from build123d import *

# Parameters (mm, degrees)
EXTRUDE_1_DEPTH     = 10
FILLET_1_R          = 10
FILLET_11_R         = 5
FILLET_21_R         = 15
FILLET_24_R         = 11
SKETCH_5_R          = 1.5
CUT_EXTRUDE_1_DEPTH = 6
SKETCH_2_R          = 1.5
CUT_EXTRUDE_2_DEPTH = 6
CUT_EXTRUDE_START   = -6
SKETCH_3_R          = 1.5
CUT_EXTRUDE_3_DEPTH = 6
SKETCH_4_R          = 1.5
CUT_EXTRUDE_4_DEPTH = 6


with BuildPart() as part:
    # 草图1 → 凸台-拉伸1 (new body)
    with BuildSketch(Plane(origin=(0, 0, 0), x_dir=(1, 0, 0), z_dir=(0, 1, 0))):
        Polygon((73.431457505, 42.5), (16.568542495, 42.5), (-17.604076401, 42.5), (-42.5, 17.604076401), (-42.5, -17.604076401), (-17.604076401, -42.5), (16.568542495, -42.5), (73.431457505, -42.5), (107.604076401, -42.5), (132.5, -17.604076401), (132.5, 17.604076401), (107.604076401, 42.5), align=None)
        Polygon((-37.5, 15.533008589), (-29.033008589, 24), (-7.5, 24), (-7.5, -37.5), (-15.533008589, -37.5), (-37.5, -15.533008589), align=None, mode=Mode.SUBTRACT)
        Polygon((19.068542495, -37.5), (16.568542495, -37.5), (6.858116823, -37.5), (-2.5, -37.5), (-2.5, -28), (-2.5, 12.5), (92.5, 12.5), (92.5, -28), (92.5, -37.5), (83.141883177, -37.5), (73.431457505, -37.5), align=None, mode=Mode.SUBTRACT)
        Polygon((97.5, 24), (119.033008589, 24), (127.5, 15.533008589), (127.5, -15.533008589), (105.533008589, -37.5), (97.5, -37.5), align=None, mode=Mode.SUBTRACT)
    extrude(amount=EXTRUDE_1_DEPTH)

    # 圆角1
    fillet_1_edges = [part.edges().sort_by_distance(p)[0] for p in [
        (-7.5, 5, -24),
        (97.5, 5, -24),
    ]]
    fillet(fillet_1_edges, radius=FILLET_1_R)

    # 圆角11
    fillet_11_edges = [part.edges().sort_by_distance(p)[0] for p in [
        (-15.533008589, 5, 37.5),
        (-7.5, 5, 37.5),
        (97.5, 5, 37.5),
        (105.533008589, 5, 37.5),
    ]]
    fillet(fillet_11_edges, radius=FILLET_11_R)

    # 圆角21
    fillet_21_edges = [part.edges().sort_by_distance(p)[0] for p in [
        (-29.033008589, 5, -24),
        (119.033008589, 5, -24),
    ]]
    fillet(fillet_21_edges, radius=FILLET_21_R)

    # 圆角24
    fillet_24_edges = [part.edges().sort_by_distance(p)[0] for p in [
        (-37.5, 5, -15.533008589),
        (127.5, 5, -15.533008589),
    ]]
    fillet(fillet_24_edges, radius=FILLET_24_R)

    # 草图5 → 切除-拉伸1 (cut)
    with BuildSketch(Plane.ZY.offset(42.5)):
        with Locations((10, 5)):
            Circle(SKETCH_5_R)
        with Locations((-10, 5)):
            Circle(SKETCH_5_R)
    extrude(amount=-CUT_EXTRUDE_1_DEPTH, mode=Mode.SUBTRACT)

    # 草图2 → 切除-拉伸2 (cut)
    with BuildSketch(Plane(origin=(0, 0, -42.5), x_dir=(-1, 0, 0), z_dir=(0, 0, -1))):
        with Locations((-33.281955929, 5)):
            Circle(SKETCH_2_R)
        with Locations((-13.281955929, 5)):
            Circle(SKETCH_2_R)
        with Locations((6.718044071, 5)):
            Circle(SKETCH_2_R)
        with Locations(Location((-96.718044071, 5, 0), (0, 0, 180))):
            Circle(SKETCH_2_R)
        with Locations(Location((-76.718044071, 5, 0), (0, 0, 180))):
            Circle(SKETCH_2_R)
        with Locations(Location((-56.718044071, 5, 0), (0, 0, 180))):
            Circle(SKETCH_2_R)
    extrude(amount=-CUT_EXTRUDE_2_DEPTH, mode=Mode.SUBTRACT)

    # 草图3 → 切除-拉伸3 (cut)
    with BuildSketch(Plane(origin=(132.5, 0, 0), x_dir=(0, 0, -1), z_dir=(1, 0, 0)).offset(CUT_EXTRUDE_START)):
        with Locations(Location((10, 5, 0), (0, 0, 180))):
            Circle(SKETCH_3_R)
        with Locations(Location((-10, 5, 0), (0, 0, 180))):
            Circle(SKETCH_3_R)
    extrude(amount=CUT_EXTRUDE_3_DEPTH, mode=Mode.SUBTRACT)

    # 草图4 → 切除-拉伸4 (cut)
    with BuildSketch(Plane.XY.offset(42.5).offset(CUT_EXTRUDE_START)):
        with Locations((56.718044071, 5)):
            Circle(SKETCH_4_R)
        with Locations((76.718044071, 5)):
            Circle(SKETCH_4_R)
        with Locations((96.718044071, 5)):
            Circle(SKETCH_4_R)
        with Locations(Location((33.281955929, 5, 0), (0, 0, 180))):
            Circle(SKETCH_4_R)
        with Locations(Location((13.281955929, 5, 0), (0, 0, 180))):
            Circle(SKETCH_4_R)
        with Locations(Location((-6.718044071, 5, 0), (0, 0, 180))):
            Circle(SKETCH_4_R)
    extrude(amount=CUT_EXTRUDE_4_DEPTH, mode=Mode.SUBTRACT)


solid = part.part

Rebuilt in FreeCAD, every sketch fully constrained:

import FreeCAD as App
import Part
import Sketcher
Q = App.Units.Quantity


def edges_at(feature, points):
    """Names of the edges that pass closest to the given points."""
    edges = feature.Shape.Edges
    near = lambda p: min(range(len(edges)), key=lambda i: edges[i].distToShape(Part.Vertex(*p))[0])
    return sorted({f"Edge{near(p) + 1}" for p in points})

doc = App.newDocument("Part")
body = doc.addObject("PartDesign::Body", "Body")

# Sketch on XZ plane
sketch1 = body.newObject("Sketcher::SketchObject", "Sketch")
sketch1.AttachmentSupport = (doc.getObject("XZ_Plane"), [""])
sketch1.MapMode = "FlatFace"
sketch1.addGeometry(Part.LineSegment(App.Vector(-18, -42, 0), App.Vector(-42, -18, 0)), False)
sketch1.addGeometry(Part.LineSegment(App.Vector(-42, -18, 0), App.Vector(-42, 18, 0)), False)
sketch1.addGeometry(Part.LineSegment(App.Vector(-42, 18, 0), App.Vector(-18, 42, 0)), False)
sketch1.addGeometry(Part.LineSegment(App.Vector(-18, 42, 0), App.Vector(108, 42, 0)), False)
sketch1.addGeometry(Part.LineSegment(App.Vector(108, 42, 0), App.Vector(132, 18, 0)), False)
sketch1.addGeometry(Part.LineSegment(App.Vector(132, 18, 0), App.Vector(132, -18, 0)), False)
sketch1.addGeometry(Part.LineSegment(App.Vector(132, -18, 0), App.Vector(108, -42, 0)), False)
sketch1.addGeometry(Part.LineSegment(App.Vector(108, -42, 0), App.Vector(-18, -42, 0)), False)
sketch1.addGeometry(Part.LineSegment(App.Vector(92, 38, 0), App.Vector(-2, 38, 0)), False)
sketch1.addGeometry(Part.LineSegment(App.Vector(-2, 38, 0), App.Vector(-2, -12, 0)), False)
sketch1.addGeometry(Part.LineSegment(App.Vector(-2, -12, 0), App.Vector(92, -12, 0)), False)
sketch1.addGeometry(Part.LineSegment(App.Vector(92, -12, 0), App.Vector(92, 38, 0)), False)
sketch1.addGeometry(Part.LineSegment(App.Vector(-38, 16, 0), App.Vector(-38, -16, 0)), False)
sketch1.addGeometry(Part.LineSegment(App.Vector(-38, -16, 0), App.Vector(-29, -24, 0)), False)
sketch1.addGeometry(Part.LineSegment(App.Vector(-29, -24, 0), App.Vector(-8, -24, 0)), False)
sketch1.addGeometry(Part.LineSegment(App.Vector(-8, -24, 0), App.Vector(-8, 38, 0)), False)
sketch1.addGeometry(Part.LineSegment(App.Vector(-8, 38, 0), App.Vector(-16, 38, 0)), False)
sketch1.addGeometry(Part.LineSegment(App.Vector(-16, 38, 0), App.Vector(-38, 16, 0)), False)
sketch1.addGeometry(Part.LineSegment(App.Vector(98, 38, 0), App.Vector(98, -24, 0)), False)
sketch1.addGeometry(Part.LineSegment(App.Vector(98, -24, 0), App.Vector(119, -24, 0)), False)
sketch1.addGeometry(Part.LineSegment(App.Vector(119, -24, 0), App.Vector(128, -16, 0)), False)
sketch1.addGeometry(Part.LineSegment(App.Vector(128, -16, 0), App.Vector(128, 16, 0)), False)
sketch1.addGeometry(Part.LineSegment(App.Vector(128, 16, 0), App.Vector(106, 38, 0)), False)
sketch1.addGeometry(Part.LineSegment(App.Vector(106, 38, 0), App.Vector(98, 38, 0)), False)
sketch1.addConstraint(Sketcher.Constraint("Coincident", 0, 2, 1, 1))
sketch1.addConstraint(Sketcher.Constraint("Coincident", 1, 2, 2, 1))
sketch1.addConstraint(Sketcher.Constraint("Coincident", 2, 2, 3, 1))
sketch1.addConstraint(Sketcher.Constraint("Coincident", 3, 2, 4, 1))
sketch1.addConstraint(Sketcher.Constraint("Coincident", 4, 2, 5, 1))
sketch1.addConstraint(Sketcher.Constraint("Coincident", 5, 2, 6, 1))
sketch1.addConstraint(Sketcher.Constraint("Coincident", 6, 2, 7, 1))
sketch1.addConstraint(Sketcher.Constraint("Coincident", 7, 2, 0, 1))
sketch1.addConstraint(Sketcher.Constraint("Coincident", 8, 2, 9, 1))
sketch1.addConstraint(Sketcher.Constraint("Coincident", 9, 2, 10, 1))
sketch1.addConstraint(Sketcher.Constraint("Coincident", 10, 2, 11, 1))
sketch1.addConstraint(Sketcher.Constraint("Coincident", 11, 2, 8, 1))
sketch1.addConstraint(Sketcher.Constraint("Coincident", 12, 2, 13, 1))
sketch1.addConstraint(Sketcher.Constraint("Coincident", 13, 2, 14, 1))
sketch1.addConstraint(Sketcher.Constraint("Coincident", 14, 2, 15, 1))
sketch1.addConstraint(Sketcher.Constraint("Coincident", 15, 2, 16, 1))
sketch1.addConstraint(Sketcher.Constraint("Coincident", 16, 2, 17, 1))
sketch1.addConstraint(Sketcher.Constraint("Coincident", 17, 2, 12, 1))
sketch1.addConstraint(Sketcher.Constraint("Coincident", 18, 2, 19, 1))
sketch1.addConstraint(Sketcher.Constraint("Coincident", 19, 2, 20, 1))
sketch1.addConstraint(Sketcher.Constraint("Coincident", 20, 2, 21, 1))
sketch1.addConstraint(Sketcher.Constraint("Coincident", 21, 2, 22, 1))
sketch1.addConstraint(Sketcher.Constraint("Coincident", 22, 2, 23, 1))
sketch1.addConstraint(Sketcher.Constraint("Coincident", 23, 2, 18, 1))
sketch1.addConstraint(Sketcher.Constraint("Vertical", 1))
sketch1.addConstraint(Sketcher.Constraint("Horizontal", 3))
sketch1.addConstraint(Sketcher.Constraint("Vertical", 5))
sketch1.addConstraint(Sketcher.Constraint("Horizontal", 7))
sketch1.addConstraint(Sketcher.Constraint("Horizontal", 8))
sketch1.addConstraint(Sketcher.Constraint("Vertical", 9))
sketch1.addConstraint(Sketcher.Constraint("Horizontal", 10))
sketch1.addConstraint(Sketcher.Constraint("Vertical", 11))
sketch1.addConstraint(Sketcher.Constraint("Vertical", 12))
sketch1.addConstraint(Sketcher.Constraint("Horizontal", 14))
sketch1.addConstraint(Sketcher.Constraint("Vertical", 15))
sketch1.addConstraint(Sketcher.Constraint("Horizontal", 16))
sketch1.addConstraint(Sketcher.Constraint("Vertical", 18))
sketch1.addConstraint(Sketcher.Constraint("Horizontal", 19))
sketch1.addConstraint(Sketcher.Constraint("Vertical", 21))
sketch1.addConstraint(Sketcher.Constraint("Horizontal", 23))
sketch1.addConstraint(Sketcher.Constraint("Symmetric", 3, 2, 6, 2, -1))
sketch1.addConstraint(Sketcher.Constraint("Perpendicular", 0, 2))
sketch1.addConstraint(Sketcher.Constraint("Perpendicular", 2, 4))
sketch1.addConstraint(Sketcher.Constraint("Perpendicular", 4, 6))
sketch1.addConstraint(Sketcher.Constraint("Perpendicular", 6, 13))
sketch1.addConstraint(Sketcher.Constraint("Perpendicular", 13, 17))
sketch1.addConstraint(Sketcher.Constraint("Parallel", 17, 20))
sketch1.addConstraint(Sketcher.Constraint("Perpendicular", 20, 22))
sketch1.addConstraint(Sketcher.Constraint("Horizontal", 1, 2, 4, 2))
sketch1.addConstraint(Sketcher.Constraint("Horizontal", 0, 2, 5, 2))
sketch1.addConstraint(Sketcher.Constraint("Horizontal", 11, 2, 15, 2))
sketch1.addConstraint(Sketcher.Constraint("Horizontal", 14, 2, 18, 2))
sketch1.addConstraint(Sketcher.Constraint("Horizontal", 12, 2, 20, 2))
sketch1.addConstraint(Sketcher.Constraint("Horizontal", 17, 2, 21, 2))
sketch1.addConstraint(Sketcher.Constraint("Horizontal", 16, 2, 22, 2))
sketch1.addConstraint(Sketcher.Constraint("Vertical", 2, 2, 7, 2))
sketch1.addConstraint(Sketcher.Constraint("Equal", 14, 19))
sketch1.addConstraint(Sketcher.Constraint("DistanceX", 8, 2, 8, 1, Q("95 mm")))
sketch1.addConstraint(Sketcher.Constraint("DistanceY", 9, 2, 9, 1, Q("50 mm")))
sketch1.addConstraint(Sketcher.Constraint("DistanceY", 15, 1, 15, 2, Q("61.5 mm")))
sketch1.addConstraint(Sketcher.Constraint("DistanceY", 13, 2, -1, 1, Q("24 mm")))
sketch1.addConstraint(Sketcher.Constraint("DistanceX", 1, 2, 4, 2, Q("175 mm")))
sketch1.addConstraint(Sketcher.Constraint("DistanceY", 6, 2, 3, 2, Q("85 mm")))
sketch1.addConstraint(Sketcher.Constraint("DistanceX", 1, 2, 8, 2, Q("40 mm")))
sketch1.addConstraint(Sketcher.Constraint("DistanceX", 0, 2, 12, 2, Q("5 mm")))
sketch1.addConstraint(Sketcher.Constraint("DistanceX", 14, 2, 9, 2, Q("5 mm")))
sketch1.addConstraint(Sketcher.Constraint("DistanceX", 10, 2, 18, 2, Q("5 mm")))
sketch1.addConstraint(Sketcher.Constraint("DistanceX", 0, 2, -1, 1, Q("42.5 mm")))
sketch1.addConstraint(Sketcher.Constraint("DistanceX", 14, 1, 14, 2, Q("21.533009 mm")))
sketch1.addConstraint(Sketcher.Constraint("DistanceX", 16, 2, 16, 1, Q("8.033009 mm")))
sketch1.addConstraint(Sketcher.Constraint("DistanceX", 3, 1, 3, 2, Q("125.208153 mm")))
pad1 = body.newObject("PartDesign::Pad", "Pad")
pad1.Profile = sketch1
pad1.Length = 10
pad1.Reversed = True
doc.recompute()

fillet = body.newObject("PartDesign::Fillet", "Fillet")
fillet.Base = (pad1, edges_at(pad1, [(-7.5, 5, -24), (97.5, 5, -24)]))
fillet.Radius = 10
doc.recompute()

fillet2 = body.newObject("PartDesign::Fillet", "Fillet001")
fillet2.Base = (fillet, edges_at(fillet, [
    (-15.533, 5, 37.5),
    (-7.5, 5, 37.5),
    (97.5, 5, 37.5),
    (105.533, 5, 37.5),
]))
fillet2.Radius = 5
doc.recompute()

fillet3 = body.newObject("PartDesign::Fillet", "Fillet002")
fillet3.Base = (fillet2, edges_at(fillet2, [(-29.033, 5, -24), (119.033, 5, -24)]))
fillet3.Radius = 15
doc.recompute()

fillet4 = body.newObject("PartDesign::Fillet", "Fillet003")
fillet4.Base = (fillet3, edges_at(fillet3, [(-37.5, 5, -15.533), (127.5, 5, -15.533)]))
fillet4.Radius = 11

# Sketch on YZ plane
sketch2 = body.newObject("Sketcher::SketchObject", "Sketch001")
sketch2.AttachmentSupport = (doc.getObject("YZ_Plane"), [""])
sketch2.MapMode = "FlatFace"
sketch2.AttachmentOffset = App.Placement(App.Vector(0, 0, -42.5), App.Rotation())
sketch2.addGeometry(Part.Circle(App.Vector(5, 10, 0), App.Vector(0, 0, 1), 1.5), False)
sketch2.addGeometry(Part.Circle(App.Vector(5, -10, 0), App.Vector(0, 0, 1), 1.5), False)
sketch2.addConstraint(Sketcher.Constraint("Equal", 0, 1))
sketch2.addConstraint(Sketcher.Constraint("Symmetric", 0, 3, 1, 3, -1))
sketch2.addConstraint(Sketcher.Constraint("Diameter", 0, Q("3 mm")))
sketch2.addConstraint(Sketcher.Constraint("DistanceX", -1, 1, 0, 3, Q("5 mm")))
sketch2.addConstraint(Sketcher.Constraint("DistanceY", -1, 1, 0, 3, Q("10 mm")))
pocket1 = body.newObject("PartDesign::Pocket", "Pocket")
pocket1.Profile = sketch2
pocket1.Length = 6
pocket1.Reversed = True

# Sketch on XY plane
sketch3 = body.newObject("Sketcher::SketchObject", "Sketch002")
sketch3.AttachmentSupport = (doc.getObject("XY_Plane"), [""])
sketch3.MapMode = "FlatFace"
sketch3.AttachmentOffset = App.Placement(App.Vector(0, 0, -42.5), App.Rotation())
sketch3.addGeometry(Part.Circle(App.Vector(33.3, 5, 0), App.Vector(0, 0, 1), 1.5), False)
sketch3.addGeometry(Part.Circle(App.Vector(13.3, 5, 0), App.Vector(0, 0, 1), 1.5), False)
sketch3.addGeometry(Part.Circle(App.Vector(-6.7, 5, 0), App.Vector(0, 0, 1), 1.5), False)
sketch3.addGeometry(Part.Circle(App.Vector(96.7, 5, 0), App.Vector(0, 0, 1), 1.5), False)
sketch3.addGeometry(Part.Circle(App.Vector(76.7, 5, 0), App.Vector(0, 0, 1), 1.5), False)
sketch3.addGeometry(Part.Circle(App.Vector(56.7, 5, 0), App.Vector(0, 0, 1), 1.5), False)
sketch3.addConstraint(Sketcher.Constraint("Equal", 0, 1))
sketch3.addConstraint(Sketcher.Constraint("Equal", 1, 2))
sketch3.addConstraint(Sketcher.Constraint("Equal", 2, 3))
sketch3.addConstraint(Sketcher.Constraint("Equal", 3, 4))
sketch3.addConstraint(Sketcher.Constraint("Equal", 4, 5))
sketch3.addConstraint(Sketcher.Constraint("Horizontal", 0, 3, 1, 3))
sketch3.addConstraint(Sketcher.Constraint("Horizontal", 1, 3, 2, 3))
sketch3.addConstraint(Sketcher.Constraint("Horizontal", 2, 3, 3, 3))
sketch3.addConstraint(Sketcher.Constraint("Horizontal", 3, 3, 4, 3))
sketch3.addConstraint(Sketcher.Constraint("Horizontal", 4, 3, 5, 3))
sketch3.addConstraint(Sketcher.Constraint("Diameter", 0, Q("3 mm")))
sketch3.addConstraint(Sketcher.Constraint("DistanceY", -1, 1, 0, 3, Q("5 mm")))
sketch3.addConstraint(Sketcher.Constraint("DistanceX", 1, 3, 0, 3, Q("20 mm")))
sketch3.addConstraint(Sketcher.Constraint("DistanceX", 2, 3, 1, 3, Q("20 mm")))
sketch3.addConstraint(Sketcher.Constraint("DistanceX", 4, 3, 3, 3, Q("20 mm")))
sketch3.addConstraint(Sketcher.Constraint("DistanceX", 5, 3, 4, 3, Q("20 mm")))
sketch3.addConstraint(Sketcher.Constraint("DistanceX", 0, 3, 3, 3, Q("63.436088 mm")))
sketch3.addConstraint(Sketcher.Constraint("DistanceX", -1, 1, 0, 3, Q("33.281956 mm")))
pocket2 = body.newObject("PartDesign::Pocket", "Pocket001")
pocket2.Profile = sketch3
pocket2.Length = 6
pocket2.Reversed = True

# Sketch on YZ plane
sketch4 = body.newObject("Sketcher::SketchObject", "Sketch003")
sketch4.AttachmentSupport = (doc.getObject("YZ_Plane"), [""])
sketch4.MapMode = "FlatFace"
sketch4.AttachmentOffset = App.Placement(App.Vector(0, 0, 126.5), App.Rotation())
sketch4.addGeometry(Part.Circle(App.Vector(5, -10, 0), App.Vector(0, 0, 1), 1.5), False)
sketch4.addGeometry(Part.Circle(App.Vector(5, 10, 0), App.Vector(0, 0, 1), 1.5), False)
sketch4.addConstraint(Sketcher.Constraint("Equal", 0, 1))
sketch4.addConstraint(Sketcher.Constraint("Symmetric", 0, 3, 1, 3, -1))
sketch4.addConstraint(Sketcher.Constraint("Diameter", 0, Q("3 mm")))
sketch4.addConstraint(Sketcher.Constraint("DistanceX", -1, 1, 0, 3, Q("5 mm")))
sketch4.addConstraint(Sketcher.Constraint("DistanceY", 0, 3, -1, 1, Q("10 mm")))
pocket3 = body.newObject("PartDesign::Pocket", "Pocket002")
pocket3.Profile = sketch4
pocket3.Length = 6
pocket3.Reversed = True

# Sketch on XY plane
sketch5 = body.newObject("Sketcher::SketchObject", "Sketch004")
sketch5.AttachmentSupport = (doc.getObject("XY_Plane"), [""])
sketch5.MapMode = "FlatFace"
sketch5.AttachmentOffset = App.Placement(App.Vector(0, 0, 36.5), App.Rotation())
sketch5.addGeometry(Part.Circle(App.Vector(56.7, 5, 0), App.Vector(0, 0, 1), 1.5), False)
sketch5.addGeometry(Part.Circle(App.Vector(76.7, 5, 0), App.Vector(0, 0, 1), 1.5), False)
sketch5.addGeometry(Part.Circle(App.Vector(96.7, 5, 0), App.Vector(0, 0, 1), 1.5), False)
sketch5.addGeometry(Part.Circle(App.Vector(33.3, 5, 0), App.Vector(0, 0, 1), 1.5), False)
sketch5.addGeometry(Part.Circle(App.Vector(13.3, 5, 0), App.Vector(0, 0, 1), 1.5), False)
sketch5.addGeometry(Part.Circle(App.Vector(-6.7, 5, 0), App.Vector(0, 0, 1), 1.5), False)
sketch5.addConstraint(Sketcher.Constraint("Equal", 0, 1))
sketch5.addConstraint(Sketcher.Constraint("Equal", 1, 2))
sketch5.addConstraint(Sketcher.Constraint("Equal", 2, 3))
sketch5.addConstraint(Sketcher.Constraint("Equal", 3, 4))
sketch5.addConstraint(Sketcher.Constraint("Equal", 4, 5))
sketch5.addConstraint(Sketcher.Constraint("Horizontal", 0, 3, 1, 3))
sketch5.addConstraint(Sketcher.Constraint("Horizontal", 1, 3, 2, 3))
sketch5.addConstraint(Sketcher.Constraint("Horizontal", 2, 3, 3, 3))
sketch5.addConstraint(Sketcher.Constraint("Horizontal", 3, 3, 4, 3))
sketch5.addConstraint(Sketcher.Constraint("Horizontal", 4, 3, 5, 3))
sketch5.addConstraint(Sketcher.Constraint("Diameter", 0, Q("3 mm")))
sketch5.addConstraint(Sketcher.Constraint("DistanceY", -1, 1, 0, 3, Q("5 mm")))
sketch5.addConstraint(Sketcher.Constraint("DistanceX", 0, 3, 1, 3, Q("20 mm")))
sketch5.addConstraint(Sketcher.Constraint("DistanceX", 1, 3, 2, 3, Q("20 mm")))
sketch5.addConstraint(Sketcher.Constraint("DistanceX", 4, 3, 3, 3, Q("20 mm")))
sketch5.addConstraint(Sketcher.Constraint("DistanceX", 5, 3, 4, 3, Q("20 mm")))
sketch5.addConstraint(Sketcher.Constraint("DistanceX", 3, 3, 0, 3, Q("23.436088 mm")))
sketch5.addConstraint(Sketcher.Constraint("DistanceX", -1, 1, 0, 3, Q("56.718044 mm")))
pocket4 = body.newObject("PartDesign::Pocket", "Pocket003")
pocket4.Profile = sketch5
pocket4.Length = 6
pocket4.Reversed = True

doc.recompute()
